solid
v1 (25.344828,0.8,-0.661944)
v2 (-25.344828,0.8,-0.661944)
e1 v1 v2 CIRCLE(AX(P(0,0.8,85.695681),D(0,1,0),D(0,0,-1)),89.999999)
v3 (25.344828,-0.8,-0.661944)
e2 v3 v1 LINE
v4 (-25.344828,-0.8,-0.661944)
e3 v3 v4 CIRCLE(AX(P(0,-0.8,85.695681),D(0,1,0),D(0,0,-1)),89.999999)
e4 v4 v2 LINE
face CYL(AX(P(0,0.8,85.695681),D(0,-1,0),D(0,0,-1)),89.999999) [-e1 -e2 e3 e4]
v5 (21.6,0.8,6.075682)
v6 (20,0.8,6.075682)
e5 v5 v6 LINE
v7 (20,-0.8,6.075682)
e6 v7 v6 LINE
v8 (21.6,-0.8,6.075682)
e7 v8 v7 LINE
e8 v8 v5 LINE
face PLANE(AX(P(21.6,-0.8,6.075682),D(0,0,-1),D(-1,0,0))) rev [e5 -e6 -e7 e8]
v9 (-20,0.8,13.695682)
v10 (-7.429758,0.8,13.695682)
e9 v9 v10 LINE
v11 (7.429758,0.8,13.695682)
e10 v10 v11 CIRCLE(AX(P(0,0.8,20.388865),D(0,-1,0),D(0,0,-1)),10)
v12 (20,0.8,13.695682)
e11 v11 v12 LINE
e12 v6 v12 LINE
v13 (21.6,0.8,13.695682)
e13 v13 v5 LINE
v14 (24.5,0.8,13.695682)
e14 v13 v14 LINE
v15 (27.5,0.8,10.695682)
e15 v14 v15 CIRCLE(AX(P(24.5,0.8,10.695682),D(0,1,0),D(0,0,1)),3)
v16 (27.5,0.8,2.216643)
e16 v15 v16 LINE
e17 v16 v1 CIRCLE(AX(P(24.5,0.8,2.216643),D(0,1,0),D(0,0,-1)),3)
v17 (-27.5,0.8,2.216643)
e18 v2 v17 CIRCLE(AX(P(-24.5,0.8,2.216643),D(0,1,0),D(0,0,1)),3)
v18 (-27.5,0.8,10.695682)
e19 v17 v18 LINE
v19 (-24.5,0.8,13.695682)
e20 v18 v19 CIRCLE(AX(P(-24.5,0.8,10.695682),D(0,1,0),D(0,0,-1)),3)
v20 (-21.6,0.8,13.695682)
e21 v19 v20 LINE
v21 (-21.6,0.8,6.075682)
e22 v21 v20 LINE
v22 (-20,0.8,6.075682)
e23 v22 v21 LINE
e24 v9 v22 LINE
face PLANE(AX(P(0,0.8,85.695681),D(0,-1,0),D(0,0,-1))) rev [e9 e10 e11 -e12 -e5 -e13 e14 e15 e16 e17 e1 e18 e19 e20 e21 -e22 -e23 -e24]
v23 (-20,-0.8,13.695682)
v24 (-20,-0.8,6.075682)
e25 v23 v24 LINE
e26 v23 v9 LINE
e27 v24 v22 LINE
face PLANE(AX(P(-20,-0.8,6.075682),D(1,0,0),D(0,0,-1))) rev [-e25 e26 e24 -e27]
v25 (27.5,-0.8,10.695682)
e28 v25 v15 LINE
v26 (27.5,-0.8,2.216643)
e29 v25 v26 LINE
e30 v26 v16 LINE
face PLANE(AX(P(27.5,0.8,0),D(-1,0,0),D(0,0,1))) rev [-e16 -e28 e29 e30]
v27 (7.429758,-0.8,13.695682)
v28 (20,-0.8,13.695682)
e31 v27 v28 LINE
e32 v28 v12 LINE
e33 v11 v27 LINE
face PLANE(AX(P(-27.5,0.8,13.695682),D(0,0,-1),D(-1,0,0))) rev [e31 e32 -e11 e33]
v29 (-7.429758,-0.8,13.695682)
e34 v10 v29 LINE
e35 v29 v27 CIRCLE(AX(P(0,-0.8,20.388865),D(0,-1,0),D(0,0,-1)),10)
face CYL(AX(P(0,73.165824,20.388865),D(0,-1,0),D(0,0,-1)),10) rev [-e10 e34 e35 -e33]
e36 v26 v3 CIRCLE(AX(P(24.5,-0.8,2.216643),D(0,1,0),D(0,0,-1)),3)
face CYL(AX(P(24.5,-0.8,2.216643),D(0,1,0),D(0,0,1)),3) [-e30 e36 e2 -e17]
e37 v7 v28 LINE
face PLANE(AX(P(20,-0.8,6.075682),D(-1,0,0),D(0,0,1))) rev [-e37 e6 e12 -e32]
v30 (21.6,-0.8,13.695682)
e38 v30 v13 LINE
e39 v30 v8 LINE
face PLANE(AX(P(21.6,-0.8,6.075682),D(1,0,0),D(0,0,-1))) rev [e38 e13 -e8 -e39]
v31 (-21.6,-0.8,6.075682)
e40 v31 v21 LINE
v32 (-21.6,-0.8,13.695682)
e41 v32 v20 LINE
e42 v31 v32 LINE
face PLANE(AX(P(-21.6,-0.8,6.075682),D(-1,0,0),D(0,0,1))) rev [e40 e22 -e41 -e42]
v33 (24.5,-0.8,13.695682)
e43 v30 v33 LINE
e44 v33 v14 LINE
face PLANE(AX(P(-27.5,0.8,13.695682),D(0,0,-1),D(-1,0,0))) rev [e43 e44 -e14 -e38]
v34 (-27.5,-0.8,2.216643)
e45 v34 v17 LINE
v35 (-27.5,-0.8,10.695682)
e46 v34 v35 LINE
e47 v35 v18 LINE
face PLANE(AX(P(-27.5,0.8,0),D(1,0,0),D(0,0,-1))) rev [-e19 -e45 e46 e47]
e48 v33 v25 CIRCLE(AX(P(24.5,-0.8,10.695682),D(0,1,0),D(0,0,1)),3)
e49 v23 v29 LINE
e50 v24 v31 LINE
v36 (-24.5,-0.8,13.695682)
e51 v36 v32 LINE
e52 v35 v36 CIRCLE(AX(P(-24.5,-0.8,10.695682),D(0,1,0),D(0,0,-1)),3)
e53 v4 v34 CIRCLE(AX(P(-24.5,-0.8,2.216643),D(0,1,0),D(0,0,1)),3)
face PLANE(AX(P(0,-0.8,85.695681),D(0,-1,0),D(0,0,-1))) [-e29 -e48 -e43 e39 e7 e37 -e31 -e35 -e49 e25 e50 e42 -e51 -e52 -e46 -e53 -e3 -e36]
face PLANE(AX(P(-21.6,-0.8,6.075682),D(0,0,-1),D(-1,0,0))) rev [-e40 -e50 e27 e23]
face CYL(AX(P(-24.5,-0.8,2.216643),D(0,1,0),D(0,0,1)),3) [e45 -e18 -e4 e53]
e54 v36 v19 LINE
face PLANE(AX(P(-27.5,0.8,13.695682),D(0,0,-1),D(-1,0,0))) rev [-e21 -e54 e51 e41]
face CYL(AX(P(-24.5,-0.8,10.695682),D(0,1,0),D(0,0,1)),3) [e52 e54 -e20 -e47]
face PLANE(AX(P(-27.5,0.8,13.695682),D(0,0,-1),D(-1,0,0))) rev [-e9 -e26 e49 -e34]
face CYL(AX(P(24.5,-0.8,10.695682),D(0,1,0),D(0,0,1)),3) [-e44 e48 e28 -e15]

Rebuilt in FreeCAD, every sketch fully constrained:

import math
import FreeCAD as App
import Part
import Sketcher

V = App.Vector
Q = App.Units.Quantity

doc = App.newDocument("Part")
body = doc.addObject("PartDesign::Body", "Body")

# Sketch on XZ plane
sketch1 = body.newObject("Sketcher::SketchObject", "Sketch")
sketch1.AttachmentSupport = (doc.getObject("XZ_Plane"), [""])
sketch1.MapMode = "FlatFace"
sketch1.addGeometry([
    Part.LineSegment(V(-28, 0, 0), V(-28, 14, 0)),
    Part.LineSegment(V(-28, 14, 0), V(28, 14, 0)),
    Part.LineSegment(V(28, 14, 0), V(28, 0, 0)),
    Part.ArcOfCircle(Part.Circle(V(0, 86, 0), V(0, 0, 1), 90), math.radians(-108), math.radians(-72)),
], False)
sketch1.addConstraint([
    Sketcher.Constraint("Coincident", 0, 2, 1, 1),
    Sketcher.Constraint("Coincident", 1, 2, 2, 1),
    Sketcher.Constraint("Coincident", 2, 2, 3, 2),
    Sketcher.Constraint("Coincident", 3, 1, 0, 1),
    Sketcher.Constraint("Vertical", 0),
    Sketcher.Constraint("Horizontal", 1),
    Sketcher.Constraint("Vertical", 2),
    Sketcher.Constraint("Symmetric", 2, 2, 3, 1, -1, 1),
    Sketcher.Constraint("PointOnObject", 3, 3, -2),
    Sketcher.Constraint("Radius", 3, Q("89.999999 mm")),
    Sketcher.Constraint("DistanceX", 1, 1, 1, 2, Q("55 mm")),
    Sketcher.Constraint("DistanceY", 0, 2, 3, 3, Q("71.999999 mm")),
])
pad1 = body.newObject("PartDesign::Pad", "Pad")
pad1.Profile = sketch1
pad1.Length = 1.6
pad1.Midplane = True

# Sketch on XZ plane
sketch2 = body.newObject("Sketcher::SketchObject", "Sketch001")
sketch2.AttachmentSupport = (doc.getObject("XZ_Plane"), [""])
sketch2.MapMode = "FlatFace"
sketch2.AttachmentOffset = App.Placement(V(0, 0, -0.8), App.Rotation())
sketch2.addGeometry([
    Part.LineSegment(V(-34.3, -11.1, 0), V(-34.3, 20.5, 0)),  # 0
    Part.LineSegment(V(-34.3, 20.5, 0), V(34.3, 20.5, 0)),  # 1
    Part.LineSegment(V(34.3, 20.5, 0), V(34.3, -11.1, 0)),  # 2
    Part.LineSegment(V(34.3, -11.1, 0), V(-34.3, -11.1, 0)),  # 3
    Part.LineSegment(V(-27.5, 10.7, 0), V(-27.5, 2.2, 0)),  # 4
    Part.ArcOfCircle(Part.Circle(V(-24.5, 2.2, 0), V(0, 0, 1), 3), math.radians(180), math.radians(254)),  # 5
    Part.ArcOfCircle(Part.Circle(V(0, 85.7, 0), V(0, 0, 1), 90), math.radians(-106), math.radians(-74)),  # 6
    Part.ArcOfCircle(Part.Circle(V(24.5, 2.2, 0), V(0, 0, 1), 3), math.radians(-74), math.radians(0)),  # 7
    Part.LineSegment(V(27.5, 2.2, 0), V(27.5, 10.7, 0)),  # 8
    Part.ArcOfCircle(Part.Circle(V(24.5, 10.7, 0), V(0, 0, 1), 3), math.radians(0), math.radians(90)),  # 9
    Part.LineSegment(V(24.5, 13.7, 0), V(-24.5, 13.7, 0)),  # 10
    Part.ArcOfCircle(Part.Circle(V(-24.5, 10.7, 0), V(0, 0, 1), 3), math.radians(90), math.radians(180)),  # 11
], False)
sketch2.addConstraint([
    Sketcher.Constraint("Coincident", 0, 2, 1, 1),
    Sketcher.Constraint("Coincident", 1, 2, 2, 1),
    Sketcher.Constraint("Coincident", 2, 2, 3, 1),
    Sketcher.Constraint("Coincident", 3, 2, 0, 1),
    Sketcher.Constraint("Tangent", 4, 2, 5, 1),
    Sketcher.Constraint("Tangent", 5, 2, 6, 1),
    Sketcher.Constraint("Tangent", 6, 2, 7, 1),
    Sketcher.Constraint("Tangent", 7, 2, 8, 1),
    Sketcher.Constraint("Tangent", 8, 2, 9, 1),
    Sketcher.Constraint("Tangent", 9, 2, 10, 1),
    Sketcher.Constraint("Tangent", 10, 2, 11, 1),
    Sketcher.Constraint("Tangent", 11, 2, 4, 1),
    Sketcher.Constraint("Vertical", 0),
    Sketcher.Constraint("Horizontal", 1),
    Sketcher.Constraint("Vertical", 2),
    Sketcher.Constraint("Horizontal", 3),
    Sketcher.Constraint("Vertical", 4),
    Sketcher.Constraint("Vertical", 8),
    Sketcher.Constraint("Horizontal", 10),
    Sketcher.Constraint("Equal", 5, 7),
    Sketcher.Constraint("Equal", 7, 9),
    Sketcher.Constraint("Equal", 9, 11),
    Sketcher.Constraint("Symmetric", 5, 3, 7, 3, -2),
    Sketcher.Constraint("Radius", 5, Q("3 mm")),
    Sketcher.Constraint("Radius", 6, Q("89.999999 mm")),
    Sketcher.Constraint("DistanceX", 10, 2, 10, 1, Q("49 mm")),
    Sketcher.Constraint("DistanceY", 9, 3, 6, 3, Q("74.999999 mm")),
    Sketcher.Constraint("DistanceX", 1, 1, 1, 2, Q("68.578 mm")),
    Sketcher.Constraint("DistanceY", 0, 1, 0, 2, Q("31.578 mm")),
    Sketcher.Constraint("DistanceX", 0, 2, -1, 1, Q("34.289 mm")),
    Sketcher.Constraint("DistanceY", -1, 1, 0, 2, Q("20.485 mm")),
    Sketcher.Constraint("DistanceY", -1, 1, 6, 3, Q("85.695681 mm")),
])
pocket1 = body.newObject("PartDesign::Pocket", "Pocket")
pocket1.Profile = sketch2
pocket1.Type = "ThroughAll"
pocket1.Reversed = True

# Sketch on XZ plane
sketch3 = body.newObject("Sketcher::SketchObject", "Sketch002")
sketch3.AttachmentSupport = (doc.getObject("XZ_Plane"), [""])
sketch3.MapMode = "FlatFace"
sketch3.AttachmentOffset = App.Placement(V(0, 0, -0.8), App.Rotation())
sketch3.addGeometry([
    Part.LineSegment(V(-21.6, 6.1, 0), V(-21.6, 13.7, 0)),  # 0
    Part.LineSegment(V(-21.6, 13.7, 0), V(-20, 13.7, 0)),  # 1
    Part.LineSegment(V(-20, 13.7, 0), V(-20, 6.1, 0)),  # 2
    Part.LineSegment(V(-20, 6.1, 0), V(-21.6, 6.1, 0)),  # 3
    Part.LineSegment(V(20, 6.1, 0), V(20, 13.7, 0)),  # 4
    Part.LineSegment(V(20, 13.7, 0), V(21.6, 13.7, 0)),  # 5
    Part.LineSegment(V(21.6, 13.7, 0), V(21.6, 6.1, 0)),  # 6
    Part.LineSegment(V(21.6, 6.1, 0), V(20, 6.1, 0)),  # 7
], False)
sketch3.addConstraint([
    Sketcher.Constraint("Coincident", 0, 2, 1, 1),
    Sketcher.Constraint("Coincident", 1, 2, 2, 1),
    Sketcher.Constraint("Coincident", 2, 2, 3, 1),
    Sketcher.Constraint("Coincident", 3, 2, 0, 1),
    Sketcher.Constraint("Coincident", 4, 2, 5, 1),
    Sketcher.Constraint("Coincident", 5, 2, 6, 1),
    Sketcher.Constraint("Coincident", 6, 2, 7, 1),
    Sketcher.Constraint("Coincident", 7, 2, 4, 1),
    Sketcher.Constraint("Vertical", 0),
    Sketcher.Constraint("Horizontal", 1),
    Sketcher.Constraint("Vertical", 2),
    Sketcher.Constraint("Horizontal", 3),
    Sketcher.Constraint("Vertical", 4),
    Sketcher.Constraint("Horizontal", 5),
    Sketcher.Constraint("Vertical", 6),
    Sketcher.Constraint("Horizontal", 7),
    Sketcher.Constraint("Symmetric", 1, 2, 4, 2, -2),
    Sketcher.Constraint("Symmetric", 3, 2, 6, 2, -2),
    Sketcher.Constraint("DistanceX", 1, 1, 1, 2, Q("1.6 mm")),
    Sketcher.Constraint("DistanceX", 1, 2, -1, 1, Q("20 mm")),
    Sketcher.Constraint("DistanceY", 0, 1, 0, 2, Q("7.62 mm")),
    Sketcher.Constraint("DistanceY", -1, 1, 0, 2, Q("13.695682 mm")),
])
pocket2 = body.newObject("PartDesign::Pocket", "Pocket001")
pocket2.Profile = sketch3
pocket2.Type = "ThroughAll"
pocket2.Reversed = True

# Sketch on XZ plane
sketch4 = body.newObject("Sketcher::SketchObject", "Sketch003")
sketch4.AttachmentSupport = (doc.getObject("XZ_Plane"), [""])
sketch4.MapMode = "FlatFace"
sketch4.AttachmentOffset = App.Placement(V(0, 0, -0.8), App.Rotation())
sketch4.addGeometry([
    Part.LineSegment(V(-7, 14, 0), V(-67, 80, 0)),  # 0
    Part.LineSegment(V(-67, 80, 0), V(-67, 257, 0)),  # 1
    Part.LineSegment(V(-67, 257, 0), V(67, 257, 0)),  # 2
    Part.LineSegment(V(67, 257, 0), V(67, 80, 0)),  # 3
    Part.LineSegment(V(67, 80, 0), V(7, 14, 0)),  # 4
    Part.ArcOfCircle(Part.Circle(V(0, 20, 0), V(0, 0, 1), 10), math.radians(-138), math.radians(-42)),  # 5
], False)
sketch4.addConstraint([
    Sketcher.Constraint("Coincident", 0, 2, 1, 1),
    Sketcher.Constraint("Coincident", 1, 2, 2, 1),
    Sketcher.Constraint("Coincident", 2, 2, 3, 1),
    Sketcher.Constraint("Coincident", 3, 2, 4, 1),
    Sketcher.Constraint("Tangent", 4, 2, 5, 2),
    Sketcher.Constraint("Tangent", 5, 1, 0, 1),
    Sketcher.Constraint("Vertical", 1),
    Sketcher.Constraint("Horizontal", 2),
    Sketcher.Constraint("Vertical", 3),
    Sketcher.Constraint("Symmetric", 0, 2, 3, 2, -2),
    Sketcher.Constraint("PointOnObject", 5, 3, -2),
    Sketcher.Constraint("Radius", 5, Q("10 mm")),
    Sketcher.Constraint("DistanceX", 2, 1, 2, 2, Q("133.449018 mm")),
    Sketcher.Constraint("DistanceY", 1, 1, 1, 2, Q("177.179541 mm")),
    Sketcher.Constraint("DistanceY", 4, 2, 2, 2, Q("242.999598 mm")),
    Sketcher.Constraint("DistanceY", -1, 1, 0, 2, Q("79.51574 mm")),
])
pocket3 = body.newObject("PartDesign::Pocket", "Pocket002")
pocket3.Profile = sketch4
pocket3.Type = "ThroughAll"
pocket3.Midplane = True

doc.recompute()
